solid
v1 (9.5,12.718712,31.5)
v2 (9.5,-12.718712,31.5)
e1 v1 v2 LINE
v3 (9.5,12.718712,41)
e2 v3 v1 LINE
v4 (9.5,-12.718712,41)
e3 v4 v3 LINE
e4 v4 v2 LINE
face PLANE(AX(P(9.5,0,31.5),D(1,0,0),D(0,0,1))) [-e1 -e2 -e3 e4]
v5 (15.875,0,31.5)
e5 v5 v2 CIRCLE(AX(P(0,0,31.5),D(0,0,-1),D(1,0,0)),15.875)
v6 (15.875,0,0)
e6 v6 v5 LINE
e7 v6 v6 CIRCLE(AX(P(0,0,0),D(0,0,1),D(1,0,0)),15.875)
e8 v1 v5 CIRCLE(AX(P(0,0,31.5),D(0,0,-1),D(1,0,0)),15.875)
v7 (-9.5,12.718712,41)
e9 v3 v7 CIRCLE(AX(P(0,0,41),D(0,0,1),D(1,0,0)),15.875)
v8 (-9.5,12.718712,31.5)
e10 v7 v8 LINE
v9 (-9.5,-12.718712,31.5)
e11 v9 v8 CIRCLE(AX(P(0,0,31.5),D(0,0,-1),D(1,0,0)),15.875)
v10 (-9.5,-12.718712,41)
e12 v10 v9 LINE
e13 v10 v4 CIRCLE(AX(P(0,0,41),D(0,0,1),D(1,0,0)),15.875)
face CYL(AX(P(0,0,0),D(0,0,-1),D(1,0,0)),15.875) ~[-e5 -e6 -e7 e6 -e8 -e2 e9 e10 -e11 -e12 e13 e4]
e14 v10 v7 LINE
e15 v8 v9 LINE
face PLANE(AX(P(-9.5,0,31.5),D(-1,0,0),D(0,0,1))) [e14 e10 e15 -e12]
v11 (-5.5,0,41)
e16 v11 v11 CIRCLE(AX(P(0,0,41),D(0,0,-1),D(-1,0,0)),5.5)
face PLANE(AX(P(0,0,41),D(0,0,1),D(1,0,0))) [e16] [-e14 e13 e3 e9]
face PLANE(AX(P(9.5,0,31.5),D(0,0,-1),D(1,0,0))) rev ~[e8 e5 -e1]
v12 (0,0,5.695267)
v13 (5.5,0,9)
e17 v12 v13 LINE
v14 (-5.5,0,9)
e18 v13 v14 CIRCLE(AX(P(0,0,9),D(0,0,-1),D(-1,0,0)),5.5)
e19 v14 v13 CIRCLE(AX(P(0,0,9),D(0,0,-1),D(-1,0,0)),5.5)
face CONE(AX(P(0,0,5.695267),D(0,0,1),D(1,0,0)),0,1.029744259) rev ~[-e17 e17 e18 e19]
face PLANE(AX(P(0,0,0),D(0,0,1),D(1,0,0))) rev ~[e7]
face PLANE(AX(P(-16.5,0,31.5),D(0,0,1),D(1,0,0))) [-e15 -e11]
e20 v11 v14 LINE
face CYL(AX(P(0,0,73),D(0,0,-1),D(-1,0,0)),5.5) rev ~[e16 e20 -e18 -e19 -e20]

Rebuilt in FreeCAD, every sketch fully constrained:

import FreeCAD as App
import Part
import Sketcher

doc = App.newDocument("Part")
body = doc.addObject("PartDesign::Body", "Body")

# Sketch on XY plane
sketch1 = doc.addObject("Sketcher::SketchObject", "Sketch")
body.addObject(sketch1)
sketch1.AttachmentSupport = (doc.XY_Plane, [""])
sketch1.MapMode = "FlatFace"
sketch1.addGeometry(Part.Circle(App.Vector(0, 0, 0), App.Vector(0, 0, 1), 15.875), False)
sketch1.addConstraint([
    Sketcher.Constraint("Coincident", 0, 3, -1, 1),
    Sketcher.Constraint("Diameter", 0, 31.75),
])
pad1 = doc.addObject("PartDesign::Pad", "Pad")
body.addObject(pad1)
pad1.Profile = sketch1
pad1.Length = 41

# Sketch on XZ plane
sketch2 = doc.addObject("Sketcher::SketchObject", "Sketch001")
body.addObject(sketch2)
sketch2.AttachmentSupport = (doc.XZ_Plane, [""])
sketch2.MapMode = "FlatFace"
sketch2.addGeometry([
    Part.LineSegment(App.Vector(-16.5, 41, 0), App.Vector(-16.5, 31.5, 0)),  # 0
    Part.LineSegment(App.Vector(-16.5, 31.5, 0), App.Vector(-9.5, 31.5, 0)),  # 1
    Part.LineSegment(App.Vector(-9.5, 31.5, 0), App.Vector(-9.5, 41, 0)),  # 2
    Part.LineSegment(App.Vector(-9.5, 41, 0), App.Vector(-16.5, 41, 0)),  # 3
    Part.LineSegment(App.Vector(9.5, 41, 0), App.Vector(9.5, 31.5, 0)),  # 4
    Part.LineSegment(App.Vector(9.5, 31.5, 0), App.Vector(16.5, 31.5, 0)),  # 5
    Part.LineSegment(App.Vector(16.5, 31.5, 0), App.Vector(16.5, 41, 0)),  # 6
    Part.LineSegment(App.Vector(16.5, 41, 0), App.Vector(9.5, 41, 0)),  # 7
], False)
sketch2.addConstraint([
    Sketcher.Constraint("Coincident", 0, 2, 1, 1),
    Sketcher.Constraint("Coincident", 1, 2, 2, 1),
    Sketcher.Constraint("Coincident", 2, 2, 3, 1),
    Sketcher.Constraint("Coincident", 3, 2, 0, 1),
    Sketcher.Constraint("Coincident", 4, 2, 5, 1),
    Sketcher.Constraint("Coincident", 5, 2, 6, 1),
    Sketcher.Constraint("Coincident", 6, 2, 7, 1),
    Sketcher.Constraint("Coincident", 7, 2, 4, 1),
    Sketcher.Constraint("Vertical", 0),
    Sketcher.Constraint("Horizontal", 1),
    Sketcher.Constraint("Vertical", 2),
    Sketcher.Constraint("Horizontal", 3),
    Sketcher.Constraint("Vertical", 4),
    Sketcher.Constraint("Horizontal", 5),
    Sketcher.Constraint("Vertical", 6),
    Sketcher.Constraint("Horizontal", 7),
    Sketcher.Constraint("Symmetric", 1, 2, 4, 2, -2),
    Sketcher.Constraint("Symmetric", 3, 2, 6, 2, -2),
    Sketcher.Constraint("DistanceX", 1, 1, 1, 2, 7.0),
    Sketcher.Constraint("DistanceY", 0, 2, 0, 1, 9.5),
    Sketcher.Constraint("DistanceY", -1, 1, 2, 2, 41.0),
    Sketcher.Constraint("DistanceX", 1, 2, 4, 2, 19.0),
])
pocket1 = doc.addObject("PartDesign::Pocket", "Pocket")
body.addObject(pocket1)
pocket1.Profile = sketch2
pocket1.Length = 50
pocket1.Midplane = True

# Sketch on XY plane
sketch3 = doc.addObject("Sketcher::SketchObject", "Sketch002")
body.addObject(sketch3)
sketch3.AttachmentSupport = (doc.XY_Plane, [""])
sketch3.MapMode = "FlatFace"
sketch3.AttachmentOffset = App.Placement(App.Vector(0, 0, 41), App.Rotation())
sketch3.addGeometry(Part.Circle(App.Vector(0, 0, 0), App.Vector(0, 0, 1), 5.5), False)
sketch3.addConstraint([
    Sketcher.Constraint("Coincident", 0, 3, -1, 1),
    Sketcher.Constraint("Diameter", 0, 11.0),
])
doc.recompute()
hole = doc.addObject("PartDesign::Hole", "Hole")
body.addObject(hole)
hole.Profile = sketch3
hole.ThreadType = "None"
hole.Diameter = 11
hole.DepthType = "Dimension"
hole.Depth = 32
hole.DrillPoint = "Angled"
hole.DrillPointAngle = 118

doc.recompute()
